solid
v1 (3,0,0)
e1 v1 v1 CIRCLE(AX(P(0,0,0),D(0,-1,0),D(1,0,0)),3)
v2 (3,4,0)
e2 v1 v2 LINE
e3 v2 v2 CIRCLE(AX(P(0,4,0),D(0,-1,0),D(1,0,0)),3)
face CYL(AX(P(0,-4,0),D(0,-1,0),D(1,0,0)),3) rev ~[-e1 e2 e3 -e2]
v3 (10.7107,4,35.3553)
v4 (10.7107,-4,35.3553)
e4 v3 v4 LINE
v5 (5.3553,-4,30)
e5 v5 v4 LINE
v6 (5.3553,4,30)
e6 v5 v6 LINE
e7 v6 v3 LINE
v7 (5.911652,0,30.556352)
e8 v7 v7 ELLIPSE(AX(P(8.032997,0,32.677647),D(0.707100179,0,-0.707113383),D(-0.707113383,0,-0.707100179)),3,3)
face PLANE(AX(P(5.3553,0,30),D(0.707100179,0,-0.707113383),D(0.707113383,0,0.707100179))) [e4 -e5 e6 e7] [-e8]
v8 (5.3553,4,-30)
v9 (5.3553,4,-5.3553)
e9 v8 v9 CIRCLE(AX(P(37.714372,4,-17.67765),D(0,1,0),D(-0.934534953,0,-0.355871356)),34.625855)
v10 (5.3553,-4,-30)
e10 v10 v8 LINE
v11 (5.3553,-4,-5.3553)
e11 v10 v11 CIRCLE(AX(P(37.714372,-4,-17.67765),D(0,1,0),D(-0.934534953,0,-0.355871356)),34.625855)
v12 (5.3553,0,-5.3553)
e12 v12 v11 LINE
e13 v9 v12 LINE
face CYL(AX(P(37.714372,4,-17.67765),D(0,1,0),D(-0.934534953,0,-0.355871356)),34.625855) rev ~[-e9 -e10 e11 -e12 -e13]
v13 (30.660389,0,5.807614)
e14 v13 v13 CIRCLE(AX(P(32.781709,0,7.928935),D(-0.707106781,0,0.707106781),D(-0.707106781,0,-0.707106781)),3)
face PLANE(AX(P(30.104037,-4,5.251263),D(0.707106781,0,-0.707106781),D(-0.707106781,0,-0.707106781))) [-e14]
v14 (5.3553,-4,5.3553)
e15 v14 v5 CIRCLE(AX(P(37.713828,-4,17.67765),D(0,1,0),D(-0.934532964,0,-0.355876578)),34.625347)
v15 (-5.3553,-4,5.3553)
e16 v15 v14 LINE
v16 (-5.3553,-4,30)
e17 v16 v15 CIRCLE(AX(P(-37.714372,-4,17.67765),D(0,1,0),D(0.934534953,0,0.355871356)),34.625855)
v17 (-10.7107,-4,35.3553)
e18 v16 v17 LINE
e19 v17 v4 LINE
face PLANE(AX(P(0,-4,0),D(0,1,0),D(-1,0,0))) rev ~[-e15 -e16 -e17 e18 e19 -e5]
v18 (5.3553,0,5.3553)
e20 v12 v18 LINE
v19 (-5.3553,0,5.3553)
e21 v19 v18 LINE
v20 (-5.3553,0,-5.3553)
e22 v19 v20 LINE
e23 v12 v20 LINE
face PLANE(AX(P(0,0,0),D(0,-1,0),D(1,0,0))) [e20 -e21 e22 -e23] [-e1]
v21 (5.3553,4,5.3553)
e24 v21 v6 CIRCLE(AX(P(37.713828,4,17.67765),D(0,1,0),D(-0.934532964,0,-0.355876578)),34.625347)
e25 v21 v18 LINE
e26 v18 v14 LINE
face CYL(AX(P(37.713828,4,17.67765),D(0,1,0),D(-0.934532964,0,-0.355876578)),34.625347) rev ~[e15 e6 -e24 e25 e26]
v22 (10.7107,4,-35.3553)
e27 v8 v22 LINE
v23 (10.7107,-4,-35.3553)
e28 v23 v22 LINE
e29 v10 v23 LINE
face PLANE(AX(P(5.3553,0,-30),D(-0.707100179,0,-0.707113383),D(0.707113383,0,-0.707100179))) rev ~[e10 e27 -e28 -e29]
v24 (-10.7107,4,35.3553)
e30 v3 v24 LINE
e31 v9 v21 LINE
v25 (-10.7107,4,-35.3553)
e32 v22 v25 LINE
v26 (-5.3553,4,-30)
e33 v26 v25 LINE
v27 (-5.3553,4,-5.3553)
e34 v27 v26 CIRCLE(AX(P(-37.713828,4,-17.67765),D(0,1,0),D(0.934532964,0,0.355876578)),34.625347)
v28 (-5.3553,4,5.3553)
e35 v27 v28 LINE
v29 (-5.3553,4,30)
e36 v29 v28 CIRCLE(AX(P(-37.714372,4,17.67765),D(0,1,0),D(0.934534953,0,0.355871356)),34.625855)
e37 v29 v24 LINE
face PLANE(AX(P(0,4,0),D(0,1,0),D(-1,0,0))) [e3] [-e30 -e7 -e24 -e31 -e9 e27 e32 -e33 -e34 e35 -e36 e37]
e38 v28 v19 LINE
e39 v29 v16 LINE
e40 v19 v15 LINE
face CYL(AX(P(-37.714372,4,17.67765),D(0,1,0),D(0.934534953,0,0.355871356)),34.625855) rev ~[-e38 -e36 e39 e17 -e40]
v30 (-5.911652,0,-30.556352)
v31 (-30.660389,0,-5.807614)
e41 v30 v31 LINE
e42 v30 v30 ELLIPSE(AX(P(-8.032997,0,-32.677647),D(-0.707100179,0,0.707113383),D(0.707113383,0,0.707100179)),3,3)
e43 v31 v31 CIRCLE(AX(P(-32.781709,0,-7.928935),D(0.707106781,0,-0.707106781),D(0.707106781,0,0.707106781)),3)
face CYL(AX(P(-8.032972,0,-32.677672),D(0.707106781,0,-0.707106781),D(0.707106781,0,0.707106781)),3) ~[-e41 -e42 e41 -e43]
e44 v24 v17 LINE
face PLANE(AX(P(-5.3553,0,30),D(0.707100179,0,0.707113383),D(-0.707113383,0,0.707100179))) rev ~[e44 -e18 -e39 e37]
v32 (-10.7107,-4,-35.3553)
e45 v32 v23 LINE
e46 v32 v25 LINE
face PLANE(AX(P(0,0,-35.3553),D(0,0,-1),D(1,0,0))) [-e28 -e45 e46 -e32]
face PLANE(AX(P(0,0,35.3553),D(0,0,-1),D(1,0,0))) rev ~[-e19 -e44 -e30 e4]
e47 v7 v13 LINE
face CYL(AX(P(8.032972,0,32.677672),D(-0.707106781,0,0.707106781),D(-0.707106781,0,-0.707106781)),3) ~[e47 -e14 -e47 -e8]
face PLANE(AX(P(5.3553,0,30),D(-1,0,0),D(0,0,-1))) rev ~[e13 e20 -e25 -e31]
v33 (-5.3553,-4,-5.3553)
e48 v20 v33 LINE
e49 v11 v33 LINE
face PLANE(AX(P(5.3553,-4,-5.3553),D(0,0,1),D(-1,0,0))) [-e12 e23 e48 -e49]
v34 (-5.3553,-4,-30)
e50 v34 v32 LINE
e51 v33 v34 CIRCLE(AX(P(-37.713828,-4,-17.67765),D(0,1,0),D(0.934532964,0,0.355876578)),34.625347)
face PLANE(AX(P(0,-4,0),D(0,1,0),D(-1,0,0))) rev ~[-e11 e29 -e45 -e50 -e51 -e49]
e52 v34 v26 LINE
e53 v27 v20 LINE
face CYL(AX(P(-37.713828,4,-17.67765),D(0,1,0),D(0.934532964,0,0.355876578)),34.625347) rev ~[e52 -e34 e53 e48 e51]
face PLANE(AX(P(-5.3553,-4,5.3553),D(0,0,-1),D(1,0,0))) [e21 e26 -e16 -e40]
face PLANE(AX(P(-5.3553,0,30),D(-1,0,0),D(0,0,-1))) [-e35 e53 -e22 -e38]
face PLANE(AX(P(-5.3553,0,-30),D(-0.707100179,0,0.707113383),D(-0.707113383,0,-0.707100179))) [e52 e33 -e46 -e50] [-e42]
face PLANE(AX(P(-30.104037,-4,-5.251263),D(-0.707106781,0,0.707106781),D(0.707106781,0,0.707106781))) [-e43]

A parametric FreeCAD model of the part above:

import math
import FreeCAD as App
import Part
import Sketcher

V = App.Vector


def add_polygon(sketch, points):
    """Adds a closed chain of lines whose ends are joined by coincident constraints."""
    first, n = sketch.GeometryCount, len(points)
    for a, b in zip(points, points[1:] + points[:1]):
        sketch.addGeometry(Part.LineSegment(App.Vector(*a, 0), App.Vector(*b, 0)), False)
    for i in range(n):
        sketch.addConstraint(Sketcher.Constraint("Coincident", first + i, 2, first + (i + 1) % n, 1))

doc = App.newDocument("Part")
params = doc.addObject("Spreadsheet::Sheet", "Params")
for row, (alias, value) in enumerate([
    ("pad1_length", "8 mm"),
    ("sketch2_diameter", "6 mm"),
    ("pad2_length", "35 mm"),
    ("pocket1_length", "8 mm"),
    ("sketch4_diameter", "6 mm"),
    ("pocket2_length", "8 mm"),
    ("pocket3_length", "4 mm"),
], start=1):
    params.set(f"A{row}", alias)
    params.set(f"B{row}", "=" + value)
    params.setAlias(f"B{row}", alias)

body = doc.addObject("PartDesign::Body", "Body")

sketch1 = body.newObject("Sketcher::SketchObject", "Sketch")
sketch1.AttachmentSupport = (doc.getObject("XZ_Plane"), [""])
sketch1.MapMode = "FlatFace"
add_polygon(sketch1, [(11, 35), (5, 30), (5, -30), (11, -35), (-11, -35), (-5, -30), (-5, 30), (-11, 35)])
sketch1.addConstraint(Sketcher.Constraint("Vertical", 1))
sketch1.addConstraint(Sketcher.Constraint("Horizontal", 3))
sketch1.addConstraint(Sketcher.Constraint("Vertical", 5))
sketch1.addConstraint(Sketcher.Constraint("Horizontal", 7))
sketch1.addConstraint(Sketcher.Constraint("Symmetric", 0, 2, 4, 2, -1, 1))
sketch1.addConstraint(Sketcher.Constraint("Symmetric", 2, 2, 6, 2, -1, 1))
sketch1.addConstraint(Sketcher.Constraint("Perpendicular", 0, 2))
sketch1.addConstraint(Sketcher.Constraint("Perpendicular", 2, 4))
sketch1.addConstraint(Sketcher.Constraint("Perpendicular", 4, 6))
sketch1.addConstraint(Sketcher.Constraint("Horizontal", 1, 2, 4, 2))
sketch1.addConstraint(Sketcher.Constraint("Vertical", 3, 2, 6, 2))
sketch1.addConstraint(Sketcher.Constraint("DistanceY", -1, 1, 0, 2, 30.0))
sketch1.addConstraint(Sketcher.Constraint("DistanceX", 3, 2, 3, 1, 21.4214))
sketch1.addConstraint(Sketcher.Constraint("DistanceX", 3, 2, 1, 2, 16.066))
pad1 = body.newObject("PartDesign::Pad", "Pad")
pad1.Profile = sketch1
pad1.setExpression("Length", "Params.pad1_length")
pad1.Midplane = True

sketch2 = body.newObject("Sketcher::SketchObject", "Sketch001")
sketch2.Placement = App.Placement(V(5.3553, -4, 30), App.Rotation(V(-0.707106781, 0, -0.707106781), V(0, 0.999999999, 0), V(0.707106781, 0, -0.707106781), "ZXY"))
sketch2.addGeometry(Part.Circle(V(-3.8, 4, 0), V(0, 0, 1), 3), False)
sketch2.addConstraint(Sketcher.Constraint("Diameter", 0, 6.0))
sketch2.addConstraint(Sketcher.Constraint("DistanceY", -1, 1, 0, 3, 4.0))
sketch2.addConstraint(Sketcher.Constraint("DistanceX", 0, 3, -1, 1, 3.7868))
sketch2.setExpression("Constraints[0]", "Params.sketch2_diameter")
pad2 = body.newObject("PartDesign::Pad", "Pad001")
pad2.Profile = sketch2
pad2.setExpression("Length", "Params.pad2_length")
doc.recompute()

polarpattern = body.newObject("PartDesign::PolarPattern", "PolarPattern")
polarpattern.Originals = [pad2]
polarpattern.Axis = (doc.getObject("Y_Axis"), [""])
polarpattern.Angle = 360
polarpattern.Occurrences = 2
body.Tip = polarpattern

sketch3 = body.newObject("Sketcher::SketchObject", "Sketch002")
sketch3.AttachmentSupport = (doc.getObject("XZ_Plane"), [""])
sketch3.MapMode = "FlatFace"
sketch3.AttachmentOffset = App.Placement(V(0, 0, -4), App.Rotation())
sketch3.addGeometry(Part.LineSegment(V(-5, -30, 0), V(-5, -5, 0)), False)
sketch3.addGeometry(Part.ArcOfCircle(Part.Circle(V(-38, -18, 0), V(0, 0, 1), 35), math.radians(-21), math.radians(21)), False)
sketch3.addGeometry(Part.ArcOfCircle(Part.Circle(V(38, -18, 0), V(0, 0, 1), 35), math.radians(159), math.radians(201)), False)
sketch3.addGeometry(Part.LineSegment(V(5, -5, 0), V(5, -30, 0)), False)
sketch3.addGeometry(Part.LineSegment(V(5, 30, 0), V(5, 5, 0)), False)
sketch3.addGeometry(Part.ArcOfCircle(Part.Circle(V(38, 18, 0), V(0, 0, 1), 35), math.radians(159), math.radians(201)), False)
sketch3.addGeometry(Part.ArcOfCircle(Part.Circle(V(-38, 18, 0), V(0, 0, 1), 35), math.radians(-21), math.radians(21)), False)
sketch3.addGeometry(Part.LineSegment(V(-5, 5, 0), V(-5, 30, 0)), False)
sketch3.addConstraint(Sketcher.Constraint("Coincident", 0, 1, 1, 1))
sketch3.addConstraint(Sketcher.Constraint("Coincident", 1, 2, 0, 2))
sketch3.addConstraint(Sketcher.Constraint("Coincident", 2, 1, 3, 1))
sketch3.addConstraint(Sketcher.Constraint("Coincident", 3, 2, 2, 2))
sketch3.addConstraint(Sketcher.Constraint("Coincident", 4, 1, 5, 1))
sketch3.addConstraint(Sketcher.Constraint("Coincident", 5, 2, 4, 2))
sketch3.addConstraint(Sketcher.Constraint("Coincident", 6, 1, 7, 1))
sketch3.addConstraint(Sketcher.Constraint("Coincident", 7, 2, 6, 2))
sketch3.addConstraint(Sketcher.Constraint("Vertical", 0))
sketch3.addConstraint(Sketcher.Constraint("Vertical", 3))
sketch3.addConstraint(Sketcher.Constraint("Vertical", 4))
sketch3.addConstraint(Sketcher.Constraint("Vertical", 7))
sketch3.addConstraint(Sketcher.Constraint("Equal", 1, 2))
sketch3.addConstraint(Sketcher.Constraint("Equal", 2, 5))
sketch3.addConstraint(Sketcher.Constraint("Equal", 5, 6))
sketch3.addConstraint(Sketcher.Constraint("Symmetric", 1, 3, 5, 3, -1, 1))
sketch3.addConstraint(Sketcher.Constraint("Symmetric", 2, 3, 6, 3, -1, 1))
sketch3.addConstraint(Sketcher.Constraint("Symmetric", 1, 3, 2, 3, -2))
sketch3.addConstraint(Sketcher.Constraint("Horizontal", 1, 2, 2, 1))
sketch3.addConstraint(Sketcher.Constraint("Horizontal", 5, 2, 6, 1))
sketch3.addConstraint(Sketcher.Constraint("Vertical", 3, 2, 4, 1))
sketch3.addConstraint(Sketcher.Constraint("DistanceY", 0, 1, -1, 1, 30.0))
sketch3.addConstraint(Sketcher.Constraint("Radius", 1, 34.6256))
sketch3.addConstraint(Sketcher.Constraint("DistanceY", 0, 1, 0, 2, 24.6447))
sketch3.addConstraint(Sketcher.Constraint("DistanceX", 1, 3, -1, 1, 37.714))
pocket1 = body.newObject("PartDesign::Pocket", "Pocket")
pocket1.Profile = sketch3
pocket1.setExpression("Length", "Params.pocket1_length")
pocket1.Reversed = True

sketch4 = body.newObject("Sketcher::SketchObject", "Sketch003")
sketch4.AttachmentSupport = (doc.getObject("XZ_Plane"), [""])
sketch4.MapMode = "FlatFace"
sketch4.AttachmentOffset = App.Placement(V(0, 0, 4), App.Rotation())
sketch4.addGeometry(Part.Circle(V(0, 0, 0), V(0, 0, 1), 3), False)
sketch4.addConstraint(Sketcher.Constraint("Coincident", 0, 3, -1, 1))
sketch4.addConstraint(Sketcher.Constraint("Diameter", 0, 6.0))
sketch4.setExpression("Constraints[1]", "Params.sketch4_diameter")
pocket2 = body.newObject("PartDesign::Pocket", "Pocket001")
pocket2.Profile = sketch4
pocket2.setExpression("Length", "Params.pocket2_length")

sketch5 = body.newObject("Sketcher::SketchObject", "Sketch004")
sketch5.AttachmentSupport = (doc.getObject("XZ_Plane"), [""])
sketch5.MapMode = "FlatFace"
sketch5.AttachmentOffset = App.Placement(V(0, 0, 4), App.Rotation())
add_polygon(sketch5, [(-5, -5), (5, -5), (5, 5), (-5, 5)])
sketch5.addConstraint(Sketcher.Constraint("Horizontal", 0))
sketch5.addConstraint(Sketcher.Constraint("Vertical", 1))
sketch5.addConstraint(Sketcher.Constraint("Horizontal", 2))
sketch5.addConstraint(Sketcher.Constraint("Vertical", 3))
sketch5.addConstraint(Sketcher.Constraint("Symmetric", 0, 2, 2, 2, -1, 1))
sketch5.addConstraint(Sketcher.Constraint("Equal", 2, 1))
sketch5.addConstraint(Sketcher.Constraint("DistanceX", 0, 1, 0, 2, 10.7106))
pocket3 = body.newObject("PartDesign::Pocket", "Pocket002")
pocket3.Profile = sketch5
pocket3.setExpression("Length", "Params.pocket3_length")

doc.recompute()
